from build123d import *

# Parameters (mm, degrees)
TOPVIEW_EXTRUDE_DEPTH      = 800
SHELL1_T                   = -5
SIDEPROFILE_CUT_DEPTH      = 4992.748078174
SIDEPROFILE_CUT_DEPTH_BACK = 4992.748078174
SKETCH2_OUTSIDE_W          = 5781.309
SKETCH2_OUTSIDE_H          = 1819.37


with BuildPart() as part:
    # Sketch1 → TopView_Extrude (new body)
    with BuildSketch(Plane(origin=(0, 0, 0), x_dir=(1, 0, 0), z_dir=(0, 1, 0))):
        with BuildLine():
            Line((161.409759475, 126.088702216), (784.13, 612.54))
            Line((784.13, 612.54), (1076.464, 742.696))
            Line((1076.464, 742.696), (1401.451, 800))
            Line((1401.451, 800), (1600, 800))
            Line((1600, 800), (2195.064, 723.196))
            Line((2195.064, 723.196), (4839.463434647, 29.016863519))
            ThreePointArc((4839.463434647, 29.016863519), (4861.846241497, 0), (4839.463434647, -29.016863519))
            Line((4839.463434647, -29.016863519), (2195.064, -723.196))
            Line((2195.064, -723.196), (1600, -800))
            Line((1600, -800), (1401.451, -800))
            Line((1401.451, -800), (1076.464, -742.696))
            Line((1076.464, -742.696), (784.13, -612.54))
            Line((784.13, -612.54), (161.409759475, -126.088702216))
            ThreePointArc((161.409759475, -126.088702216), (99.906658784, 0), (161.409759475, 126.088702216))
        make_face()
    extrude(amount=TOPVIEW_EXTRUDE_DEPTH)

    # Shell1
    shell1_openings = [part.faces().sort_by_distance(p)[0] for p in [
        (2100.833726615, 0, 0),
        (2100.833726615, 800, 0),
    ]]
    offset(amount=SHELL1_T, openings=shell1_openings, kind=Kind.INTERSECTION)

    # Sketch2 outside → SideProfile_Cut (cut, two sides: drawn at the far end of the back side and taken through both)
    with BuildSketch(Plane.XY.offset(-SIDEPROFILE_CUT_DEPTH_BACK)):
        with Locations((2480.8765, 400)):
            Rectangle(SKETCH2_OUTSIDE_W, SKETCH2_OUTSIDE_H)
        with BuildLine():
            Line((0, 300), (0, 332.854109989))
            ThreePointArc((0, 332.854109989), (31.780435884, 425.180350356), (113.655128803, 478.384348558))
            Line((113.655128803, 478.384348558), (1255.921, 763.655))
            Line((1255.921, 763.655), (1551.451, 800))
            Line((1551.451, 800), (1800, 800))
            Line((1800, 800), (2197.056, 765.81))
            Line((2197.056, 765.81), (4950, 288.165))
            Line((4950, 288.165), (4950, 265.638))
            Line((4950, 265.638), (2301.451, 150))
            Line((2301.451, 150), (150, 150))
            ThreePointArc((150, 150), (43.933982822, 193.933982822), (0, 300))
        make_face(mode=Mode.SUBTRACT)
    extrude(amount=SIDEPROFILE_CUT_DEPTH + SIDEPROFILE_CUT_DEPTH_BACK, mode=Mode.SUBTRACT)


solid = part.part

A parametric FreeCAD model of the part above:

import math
import FreeCAD as App
import Part
import Sketcher
from FreeCAD import Vector
Q = App.Units.Quantity


def faces_at(feature, points):
    """Names of the faces that lie closest to the given points."""
    faces = feature.Shape.Faces
    near = lambda p: min(range(len(faces)), key=lambda i: faces[i].distToShape(Part.Vertex(*p))[0])
    return sorted({f"Face{near(p) + 1}" for p in points})

doc = App.newDocument("Part")
params = doc.addObject("Spreadsheet::Sheet", "Params")
for row, (alias, value) in enumerate([
    ("sketch1_radius", "160 mm"),
    ("sketch1_radius2", "30 mm"),
    ("pad1_length", "800 mm"),
    ("thickness_wall", "5 mm"),
    ("sketch2_radius", "150 mm"),
    ("sketch2_height", "1819.37 mm"),
], start=1):
    params.set(f"A{row}", alias)
    params.set(f"B{row}", "=" + value)
    params.setAlias(f"B{row}", alias)

body = doc.addObject("PartDesign::Body", "Body")

# Sketch on XZ plane
sketch1 = doc.addObject("Sketcher::SketchObject", "Sketch")
body.addObject(sketch1)
sketch1.AttachmentSupport = (doc.XZ_Plane, [""])
sketch1.MapMode = "FlatFace"
sketch1.addGeometry([
    Part.LineSegment(Vector(784, -613, 0), Vector(161, -126, 0)),  # 0
    Part.ArcOfCircle(Part.Circle(Vector(260, 0, 0), Vector(0, 0, 1), 160), math.radians(128), math.radians(232)),  # 1
    Part.LineSegment(Vector(161, 126, 0), Vector(784, 613, 0)),  # 2
    Part.LineSegment(Vector(784, 613, 0), Vector(1076, 743, 0)),  # 3
    Part.LineSegment(Vector(1076, 743, 0), Vector(1401, 800, 0)),  # 4
    Part.LineSegment(Vector(1401, 800, 0), Vector(1600, 800, 0)),  # 5
    Part.LineSegment(Vector(1600, 800, 0), Vector(2195, 723, 0)),  # 6
    Part.LineSegment(Vector(2195, 723, 0), Vector(4839, 29, 0)),  # 7
    Part.ArcOfCircle(Part.Circle(Vector(4832, 0, 0), Vector(0, 0, 1), 30), math.radians(-75), math.radians(75)),  # 8
    Part.LineSegment(Vector(4839, -29, 0), Vector(2195, -723, 0)),  # 9
    Part.LineSegment(Vector(2195, -723, 0), Vector(1600, -800, 0)),  # 10
    Part.LineSegment(Vector(1600, -800, 0), Vector(1401, -800, 0)),  # 11
    Part.LineSegment(Vector(1401, -800, 0), Vector(1076, -743, 0)),  # 12
    Part.LineSegment(Vector(1076, -743, 0), Vector(784, -613, 0)),  # 13
], False)
sketch1.addConstraint([
    Sketcher.Constraint("Tangent", 0, 2, 1, 2),
    Sketcher.Constraint("Tangent", 1, 1, 2, 1),
    Sketcher.Constraint("Coincident", 2, 2, 3, 1),
    Sketcher.Constraint("Coincident", 3, 2, 4, 1),
    Sketcher.Constraint("Coincident", 4, 2, 5, 1),
    Sketcher.Constraint("Coincident", 5, 2, 6, 1),
    Sketcher.Constraint("Coincident", 6, 2, 7, 1),
    Sketcher.Constraint("Tangent", 7, 2, 8, 2),
    Sketcher.Constraint("Tangent", 8, 1, 9, 1),
    Sketcher.Constraint("Coincident", 9, 2, 10, 1),
    Sketcher.Constraint("Coincident", 10, 2, 11, 1),
    Sketcher.Constraint("Coincident", 11, 2, 12, 1),
    Sketcher.Constraint("Coincident", 12, 2, 13, 1),
    Sketcher.Constraint("Coincident", 13, 2, 0, 1),
    Sketcher.Constraint("Horizontal", 5),
    Sketcher.Constraint("Horizontal", 11),
    Sketcher.Constraint("Symmetric", 6, 2, 9, 2, -1),
    Sketcher.Constraint("Symmetric", 5, 2, 10, 2, -1),
    Sketcher.Constraint("Symmetric", 3, 2, 12, 2, -1),
    Sketcher.Constraint("Symmetric", 2, 2, 13, 2, -1),
    Sketcher.Constraint("PointOnObject", 1, 3, -1),
    Sketcher.Constraint("PointOnObject", 8, 3, -1),
    Sketcher.Constraint("Vertical", 4, 2, 11, 2),
    Sketcher.Constraint("Radius", 1, Q("160 mm")),
    Sketcher.Constraint("Radius", 8, Q("30 mm")),
    Sketcher.Constraint("Angle", 4, Q("10.000004 deg")),
    Sketcher.Constraint("DistanceY", -1, 1, 4, 2, Q("800 mm")),
    Sketcher.Constraint("DistanceX", -1, 1, 5, 2, Q("1600 mm")),
    Sketcher.Constraint("DistanceX", 3, 2, 6, 2, Q("1118.6 mm")),
    Sketcher.Constraint("DistanceY", 6, 2, 3, 2, Q("19.5 mm")),
    Sketcher.Constraint("DistanceX", 5, 1, 5, 2, Q("198.549 mm")),
    Sketcher.Constraint("DistanceX", -1, 1, 2, 2, Q("784.13 mm")),
    Sketcher.Constraint("DistanceY", -1, 1, 2, 2, Q("612.54 mm")),
    Sketcher.Constraint("DistanceX", -1, 1, 3, 2, Q("1076.464 mm")),
    Sketcher.Constraint("Distance", 7, Q("2733.995802 mm")),
    Sketcher.Constraint("DistanceX", 0, 2, 1, 3, Q("98.496899 mm")),
])
sketch1.setExpression("Constraints[23]", "Params.sketch1_radius")
sketch1.setExpression("Constraints[24]", "Params.sketch1_radius2")
pad1 = doc.addObject("PartDesign::Pad", "Pad")
body.addObject(pad1)
pad1.Profile = sketch1
pad1.setExpression("Length", "Params.pad1_length")
pad1.Reversed = True
doc.recompute()

thickness = doc.addObject("PartDesign::Thickness", "Thickness")
body.addObject(thickness)
thickness.Base = (pad1, faces_at(pad1, [(2480.876, 0, 0), (2480.876, 800, 0)]))
thickness.setExpression("Value", "Params.thickness_wall")
thickness.Reversed = True
thickness.Join = "Intersection"

# Sketch on XY plane
sketch2 = doc.addObject("Sketcher::SketchObject", "Sketch001")
body.addObject(sketch2)
sketch2.AttachmentSupport = (doc.XY_Plane, [""])
sketch2.MapMode = "FlatFace"
sketch2.addGeometry([
    Part.LineSegment(Vector(-410, 1310, 0), Vector(-410, -510, 0)),  # 0
    Part.LineSegment(Vector(-410, -510, 0), Vector(5372, -510, 0)),  # 1
    Part.LineSegment(Vector(5372, -510, 0), Vector(5372, 1310, 0)),  # 2
    Part.LineSegment(Vector(5372, 1310, 0), Vector(-410, 1310, 0)),  # 3
    Part.ArcOfCircle(Part.Circle(Vector(150, 300, 0), Vector(0, 0, 1), 150), math.radians(180), math.radians(270)),  # 4
    Part.LineSegment(Vector(0, 300, 0), Vector(0, 333, 0)),  # 5
    Part.ArcOfCircle(Part.Circle(Vector(150, 333, 0), Vector(0, 0, 1), 150), math.radians(104), math.radians(180)),  # 6
    Part.LineSegment(Vector(114, 478, 0), Vector(1256, 764, 0)),  # 7
    Part.LineSegment(Vector(1256, 764, 0), Vector(1551, 800, 0)),  # 8
    Part.LineSegment(Vector(1551, 800, 0), Vector(1800, 800, 0)),  # 9
    Part.LineSegment(Vector(1800, 800, 0), Vector(2197, 766, 0)),  # 10
    Part.LineSegment(Vector(2197, 766, 0), Vector(4950, 288, 0)),  # 11
    Part.LineSegment(Vector(4950, 288, 0), Vector(4950, 266, 0)),  # 12
    Part.LineSegment(Vector(4950, 266, 0), Vector(2301, 150, 0)),  # 13
    Part.LineSegment(Vector(2301, 150, 0), Vector(150, 150, 0)),  # 14
], False)
sketch2.addConstraint([
    Sketcher.Constraint("Coincident", 0, 2, 1, 1),
    Sketcher.Constraint("Coincident", 1, 2, 2, 1),
    Sketcher.Constraint("Coincident", 2, 2, 3, 1),
    Sketcher.Constraint("Coincident", 3, 2, 0, 1),
    Sketcher.Constraint("Tangent", 4, 1, 5, 1),
    Sketcher.Constraint("Tangent", 5, 2, 6, 2),
    Sketcher.Constraint("Tangent", 6, 1, 7, 1),
    Sketcher.Constraint("Coincident", 7, 2, 8, 1),
    Sketcher.Constraint("Coincident", 8, 2, 9, 1),
    Sketcher.Constraint("Coincident", 9, 2, 10, 1),
    Sketcher.Constraint("Coincident", 10, 2, 11, 1),
    Sketcher.Constraint("Coincident", 11, 2, 12, 1),
    Sketcher.Constraint("Coincident", 12, 2, 13, 1),
    Sketcher.Constraint("Coincident", 13, 2, 14, 1),
    Sketcher.Constraint("Tangent", 14, 2, 4, 2),
    Sketcher.Constraint("Vertical", 0),
    Sketcher.Constraint("Horizontal", 1),
    Sketcher.Constraint("Vertical", 2),
    Sketcher.Constraint("Horizontal", 3),
    Sketcher.Constraint("Vertical", 5),
    Sketcher.Constraint("Horizontal", 9),
    Sketcher.Constraint("Vertical", 12),
    Sketcher.Constraint("Horizontal", 14),
    Sketcher.Constraint("Equal", 4, 6),
    Sketcher.Constraint("PointOnObject", 4, 1, -2),
    Sketcher.Constraint("Radius", 4, Q("150 mm")),
    Sketcher.Constraint("DistanceY", -1, 1, 4, 3, Q("300 mm")),
    Sketcher.Constraint("DistanceY", -1, 1, 8, 2, Q("800 mm")),
    Sketcher.Constraint("DistanceX", -1, 1, 9, 2, Q("1800 mm")),
    Sketcher.Constraint("DistanceX", -1, 1, 11, 2, Q("4950 mm")),
    Sketcher.Constraint("Angle", 13, Q("-177.500003 deg")),
    Sketcher.Constraint("DistanceX", 8, 2, 13, 2, Q("750 mm")),
    Sketcher.Constraint("DistanceY", 0, 2, 0, 1, Q("1819.37 mm")),
    Sketcher.Constraint("DistanceX", 1, 1, 1, 2, Q("5781.309 mm")),
    Sketcher.Constraint("DistanceX", 9, 1, 9, 2, Q("248.549 mm")),
    Sketcher.Constraint("DistanceY", 12, 2, 12, 1, Q("22.527 mm")),
    Sketcher.Constraint("DistanceY", -1, 1, 10, 2, Q("765.81 mm")),
    Sketcher.Constraint("DistanceX", 7, 2, 8, 2, Q("295.53 mm")),
    Sketcher.Constraint("DistanceY", 1, 2, 11, 2, Q("797.85 mm")),
    Sketcher.Constraint("Distance", 7, Q("1177.348999 mm")),
    Sketcher.Constraint("DistanceX", 0, 2, -1, 1, Q("409.778 mm")),
    Sketcher.Constraint("DistanceY", -1, 1, 7, 2, Q("763.655 mm")),
    Sketcher.Constraint("DistanceX", -1, 1, 10, 2, Q("2197.056 mm")),
])
sketch2.setExpression("Constraints[25]", "Params.sketch2_radius")
sketch2.setExpression("Constraints[32]", "Params.sketch2_height")
pocket1 = doc.addObject("PartDesign::Pocket", "Pocket")
body.addObject(pocket1)
pocket1.Profile = sketch2
pocket1.Type = "ThroughAll"
pocket1.Midplane = True

doc.recompute()
